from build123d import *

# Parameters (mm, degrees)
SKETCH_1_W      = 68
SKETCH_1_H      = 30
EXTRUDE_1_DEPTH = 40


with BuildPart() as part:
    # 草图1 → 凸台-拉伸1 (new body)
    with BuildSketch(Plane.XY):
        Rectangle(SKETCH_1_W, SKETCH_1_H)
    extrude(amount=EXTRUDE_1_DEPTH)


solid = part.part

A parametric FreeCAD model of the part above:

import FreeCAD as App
import Part
import Sketcher
Q = App.Units.Quantity


def add_polygon(sketch, points):
    """Adds a closed chain of lines whose ends are joined by coincident constraints."""
    first, n = sketch.GeometryCount, len(points)
    for a, b in zip(points, points[1:] + points[:1]):
        sketch.addGeometry(Part.LineSegment(App.Vector(*a, 0), App.Vector(*b, 0)), False)
    for i in range(n):
        sketch.addConstraint(Sketcher.Constraint("Coincident", first + i, 2, first + (i + 1) % n, 1))

doc = App.newDocument("Part")
body = doc.addObject("PartDesign::Body", "Body")

# Sketch on XY plane
sketch1 = body.newObject("Sketcher::SketchObject", "Sketch")
sketch1.AttachmentSupport = (doc.getObject("XY_Plane"), [""])
sketch1.MapMode = "FlatFace"
add_polygon(sketch1, [(-34, 15), (-34, -15), (34, -15), (34, 15)])  # lines 0-3
sketch1.addConstraint([
    Sketcher.Constraint("Vertical", 0),
    Sketcher.Constraint("Horizontal", 1),
    Sketcher.Constraint("Vertical", 2),
    Sketcher.Constraint("Horizontal", 3),
    Sketcher.Constraint("Symmetric", 0, 2, 2, 2, -1, 1),
    Sketcher.Constraint("DistanceX", 1, 1, 1, 2, Q("68 mm")),
    Sketcher.Constraint("DistanceY", 0, 2, 0, 1, Q("30 mm")),
])
pad1 = body.newObject("PartDesign::Pad", "Pad")
pad1.Profile = sketch1
pad1.Length = 40

doc.recompute()
